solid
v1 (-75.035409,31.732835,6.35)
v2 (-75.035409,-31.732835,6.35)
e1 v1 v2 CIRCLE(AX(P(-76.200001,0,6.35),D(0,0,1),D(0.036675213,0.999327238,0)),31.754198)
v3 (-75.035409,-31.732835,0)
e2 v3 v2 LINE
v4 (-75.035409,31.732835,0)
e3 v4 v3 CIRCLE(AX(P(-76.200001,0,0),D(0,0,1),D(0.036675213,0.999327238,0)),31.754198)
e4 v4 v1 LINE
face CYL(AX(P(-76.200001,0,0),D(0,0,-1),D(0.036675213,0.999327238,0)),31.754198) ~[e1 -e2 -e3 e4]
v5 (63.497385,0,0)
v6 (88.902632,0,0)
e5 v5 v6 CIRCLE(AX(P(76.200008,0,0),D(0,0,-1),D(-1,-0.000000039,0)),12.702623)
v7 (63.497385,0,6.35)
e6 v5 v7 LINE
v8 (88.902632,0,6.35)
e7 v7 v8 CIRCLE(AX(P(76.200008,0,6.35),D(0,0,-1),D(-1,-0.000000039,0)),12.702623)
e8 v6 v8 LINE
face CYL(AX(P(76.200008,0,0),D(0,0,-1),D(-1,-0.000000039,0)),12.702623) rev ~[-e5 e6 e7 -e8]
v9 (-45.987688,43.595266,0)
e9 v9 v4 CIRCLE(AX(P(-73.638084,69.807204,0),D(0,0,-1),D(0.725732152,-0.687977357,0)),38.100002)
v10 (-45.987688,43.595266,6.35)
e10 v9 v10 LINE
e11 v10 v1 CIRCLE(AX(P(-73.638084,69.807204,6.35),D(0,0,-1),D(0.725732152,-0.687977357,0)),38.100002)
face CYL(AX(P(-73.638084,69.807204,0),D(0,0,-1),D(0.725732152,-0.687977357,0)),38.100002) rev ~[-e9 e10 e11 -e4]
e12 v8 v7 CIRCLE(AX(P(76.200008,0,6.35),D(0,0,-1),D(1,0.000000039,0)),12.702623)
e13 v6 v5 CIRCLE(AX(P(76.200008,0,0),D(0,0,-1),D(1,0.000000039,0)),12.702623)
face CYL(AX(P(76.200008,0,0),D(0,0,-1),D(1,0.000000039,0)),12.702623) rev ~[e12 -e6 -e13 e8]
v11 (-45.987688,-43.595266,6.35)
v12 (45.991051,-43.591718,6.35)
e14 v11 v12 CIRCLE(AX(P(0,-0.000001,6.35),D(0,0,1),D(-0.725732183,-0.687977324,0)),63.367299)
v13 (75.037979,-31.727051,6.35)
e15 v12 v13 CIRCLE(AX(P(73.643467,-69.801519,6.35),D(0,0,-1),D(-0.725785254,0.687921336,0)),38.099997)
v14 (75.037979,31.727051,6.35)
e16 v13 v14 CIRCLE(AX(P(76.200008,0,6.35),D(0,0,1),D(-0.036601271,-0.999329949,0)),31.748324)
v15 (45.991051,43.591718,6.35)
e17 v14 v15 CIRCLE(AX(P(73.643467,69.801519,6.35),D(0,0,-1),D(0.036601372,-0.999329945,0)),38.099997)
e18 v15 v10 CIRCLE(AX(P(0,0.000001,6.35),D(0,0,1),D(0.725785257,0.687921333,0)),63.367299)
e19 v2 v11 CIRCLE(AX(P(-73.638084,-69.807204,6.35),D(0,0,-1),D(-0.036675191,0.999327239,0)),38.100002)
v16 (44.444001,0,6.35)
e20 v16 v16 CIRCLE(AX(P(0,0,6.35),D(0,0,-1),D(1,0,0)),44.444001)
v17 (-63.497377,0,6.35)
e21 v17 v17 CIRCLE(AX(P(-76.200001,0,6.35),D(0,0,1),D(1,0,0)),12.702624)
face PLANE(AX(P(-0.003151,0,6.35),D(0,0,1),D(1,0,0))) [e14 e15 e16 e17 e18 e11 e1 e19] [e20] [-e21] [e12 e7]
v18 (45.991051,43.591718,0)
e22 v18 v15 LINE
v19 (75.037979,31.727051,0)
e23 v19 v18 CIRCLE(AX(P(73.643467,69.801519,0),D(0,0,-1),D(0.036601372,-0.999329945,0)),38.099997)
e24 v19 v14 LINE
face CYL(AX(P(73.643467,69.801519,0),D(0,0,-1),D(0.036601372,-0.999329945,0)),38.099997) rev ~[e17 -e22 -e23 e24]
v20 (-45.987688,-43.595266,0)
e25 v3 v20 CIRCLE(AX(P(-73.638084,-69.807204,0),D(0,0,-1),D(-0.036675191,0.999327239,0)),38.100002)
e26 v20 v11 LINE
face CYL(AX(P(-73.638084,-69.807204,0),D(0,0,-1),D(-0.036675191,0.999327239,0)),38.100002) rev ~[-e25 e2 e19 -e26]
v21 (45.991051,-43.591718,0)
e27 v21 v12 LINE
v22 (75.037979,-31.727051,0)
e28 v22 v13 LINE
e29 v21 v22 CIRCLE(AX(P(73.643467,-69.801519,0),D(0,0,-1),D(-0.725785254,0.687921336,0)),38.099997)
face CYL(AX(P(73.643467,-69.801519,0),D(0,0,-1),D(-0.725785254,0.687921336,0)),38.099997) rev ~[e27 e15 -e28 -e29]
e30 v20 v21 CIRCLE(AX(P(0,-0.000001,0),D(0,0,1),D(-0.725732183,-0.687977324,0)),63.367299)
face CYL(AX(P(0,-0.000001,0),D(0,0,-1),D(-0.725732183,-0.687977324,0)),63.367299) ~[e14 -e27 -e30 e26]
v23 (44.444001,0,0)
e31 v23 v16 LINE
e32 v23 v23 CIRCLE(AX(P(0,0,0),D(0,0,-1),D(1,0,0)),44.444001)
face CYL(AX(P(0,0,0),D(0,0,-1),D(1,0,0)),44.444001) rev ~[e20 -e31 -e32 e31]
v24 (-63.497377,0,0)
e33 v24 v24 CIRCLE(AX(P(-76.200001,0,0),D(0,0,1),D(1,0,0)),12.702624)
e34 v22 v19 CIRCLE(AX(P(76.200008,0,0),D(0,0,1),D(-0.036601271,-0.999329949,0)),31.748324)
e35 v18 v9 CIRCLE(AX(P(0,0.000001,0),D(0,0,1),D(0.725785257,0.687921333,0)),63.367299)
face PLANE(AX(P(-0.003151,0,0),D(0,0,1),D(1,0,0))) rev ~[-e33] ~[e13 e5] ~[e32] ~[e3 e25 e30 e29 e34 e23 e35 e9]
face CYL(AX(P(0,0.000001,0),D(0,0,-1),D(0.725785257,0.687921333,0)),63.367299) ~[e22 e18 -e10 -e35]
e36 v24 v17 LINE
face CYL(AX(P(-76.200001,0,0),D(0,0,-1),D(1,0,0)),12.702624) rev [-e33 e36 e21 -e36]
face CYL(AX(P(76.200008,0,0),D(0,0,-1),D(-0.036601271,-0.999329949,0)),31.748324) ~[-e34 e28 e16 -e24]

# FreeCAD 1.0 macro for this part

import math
import FreeCAD as App
import Part
import Sketcher
from FreeCAD import Vector
Q = App.Units.Quantity

doc = App.newDocument("Part")
body = doc.addObject("PartDesign::Body", "Body")

# Sketch on XY plane
sketch1 = doc.addObject("Sketcher::SketchObject", "Sketch")
body.addObject(sketch1)
sketch1.AttachmentSupport = (doc.XY_Plane, [""])
sketch1.MapMode = "FlatFace"
sketch1.addGeometry([
    Part.ArcOfCircle(Part.Circle(Vector(-73.638084, -69.807204, 0), Vector(0, 0, 1), 38.100002), math.radians(43.470212), math.radians(92.101805)),  # 0
    Part.ArcOfCircle(Part.Circle(Vector(0, -0.000001, 0), Vector(0, 0, 1), 63.367299), math.radians(-136.529791), math.radians(-43.465789)),  # 1
    Part.ArcOfCircle(Part.Circle(Vector(73.643467, -69.801519, 0), Vector(0, 0, 1), 38.099997), math.radians(87.902427), math.radians(136.534211)),  # 2
    Part.ArcOfCircle(Part.Circle(Vector(76.200008, 0, 0), Vector(0, 0, 1), 31.748324), math.radians(-92.097567), math.radians(92.097567)),  # 3
    Part.ArcOfCircle(Part.Circle(Vector(73.643467, 69.801519, 0), Vector(0, 0, 1), 38.099997), math.radians(-136.534211), math.radians(-87.902427)),  # 4
    Part.ArcOfCircle(Part.Circle(Vector(0, 0.000001, 0), Vector(0, 0, 1), 63.367299), math.radians(43.465789), math.radians(136.529791)),  # 5
    Part.ArcOfCircle(Part.Circle(Vector(-73.638084, 69.807204, 0), Vector(0, 0, 1), 38.100002), math.radians(-92.101805), math.radians(-43.470212)),  # 6
    Part.ArcOfCircle(Part.Circle(Vector(-76.200001, 0, 0), Vector(0, 0, 1), 31.754198), math.radians(87.898194), math.radians(272.101806)),  # 7
    Part.Circle(Vector(-76.200001, 0, 0), Vector(0, 0, 1), 12.702624),  # 8
    Part.Circle(Vector(0, 0, 0), Vector(0, 0, 1), 44.444001),  # 9
    Part.ArcOfCircle(Part.Circle(Vector(76.200008, 0, 0), Vector(0, 0, 1), 12.702623), math.radians(179.999998), math.radians(360.000002)),  # 10
    Part.ArcOfCircle(Part.Circle(Vector(76.200008, 0, 0), Vector(0, 0, 1), 12.702623), math.radians(-0.000002), math.radians(180.000002)),  # 11
], False)
sketch1.addConstraint([
    Sketcher.Constraint("Tangent", 0, 1, 1, 1),
    Sketcher.Constraint("Tangent", 1, 2, 2, 2),
    Sketcher.Constraint("Tangent", 2, 1, 3, 1),
    Sketcher.Constraint("Tangent", 3, 2, 4, 2),
    Sketcher.Constraint("Tangent", 4, 1, 5, 1),
    Sketcher.Constraint("Tangent", 5, 2, 6, 2),
    Sketcher.Constraint("Tangent", 6, 1, 7, 1),
    Sketcher.Constraint("Tangent", 7, 2, 0, 2),
    Sketcher.Constraint("Tangent", 10, 1, 11, 2),
    Sketcher.Constraint("Coincident", 11, 1, 10, 2),
    Sketcher.Constraint("Coincident", 1, 3, -1, 1),
    Sketcher.Constraint("Coincident", 5, 3, -1, 1),
    Sketcher.Constraint("Coincident", 9, 3, -1, 1),
    Sketcher.Constraint("Coincident", 8, 3, 7, 3),
    Sketcher.Constraint("Coincident", 10, 3, 3, 3),
    Sketcher.Constraint("Equal", 2, 4),
    Sketcher.Constraint("Equal", 1, 5),
    Sketcher.Constraint("Equal", 0, 6),
    Sketcher.Constraint("Equal", 8, 10),
    Sketcher.Constraint("Symmetric", 3, 3, 7, 3, -1, 1),
    Sketcher.Constraint("PointOnObject", 3, 3, -1),
    Sketcher.Constraint("PointOnObject", 10, 1, -1),
    Sketcher.Constraint("PointOnObject", 11, 1, -1),
    Sketcher.Constraint("Radius", 0, Q("1.5000001 in")),
    Sketcher.Constraint("Radius", 2, Q("1.4999999 in")),
    Sketcher.Constraint("DistanceX", 7, 3, -1, 1, Q("3 in")),
    Sketcher.Constraint("Diameter", 9, 88.888002),
    Sketcher.Constraint("Radius", 1, 63.367299),
    Sketcher.Constraint("Radius", 7, 31.754198),
    Sketcher.Constraint("Diameter", 8, 25.405248),
    Sketcher.Constraint("Radius", 3, 31.748324),
])
pad1 = doc.addObject("PartDesign::Pad", "Pad")
body.addObject(pad1)
pad1.Profile = sketch1
pad1.Length = Q("0.25 in")

doc.recompute()
